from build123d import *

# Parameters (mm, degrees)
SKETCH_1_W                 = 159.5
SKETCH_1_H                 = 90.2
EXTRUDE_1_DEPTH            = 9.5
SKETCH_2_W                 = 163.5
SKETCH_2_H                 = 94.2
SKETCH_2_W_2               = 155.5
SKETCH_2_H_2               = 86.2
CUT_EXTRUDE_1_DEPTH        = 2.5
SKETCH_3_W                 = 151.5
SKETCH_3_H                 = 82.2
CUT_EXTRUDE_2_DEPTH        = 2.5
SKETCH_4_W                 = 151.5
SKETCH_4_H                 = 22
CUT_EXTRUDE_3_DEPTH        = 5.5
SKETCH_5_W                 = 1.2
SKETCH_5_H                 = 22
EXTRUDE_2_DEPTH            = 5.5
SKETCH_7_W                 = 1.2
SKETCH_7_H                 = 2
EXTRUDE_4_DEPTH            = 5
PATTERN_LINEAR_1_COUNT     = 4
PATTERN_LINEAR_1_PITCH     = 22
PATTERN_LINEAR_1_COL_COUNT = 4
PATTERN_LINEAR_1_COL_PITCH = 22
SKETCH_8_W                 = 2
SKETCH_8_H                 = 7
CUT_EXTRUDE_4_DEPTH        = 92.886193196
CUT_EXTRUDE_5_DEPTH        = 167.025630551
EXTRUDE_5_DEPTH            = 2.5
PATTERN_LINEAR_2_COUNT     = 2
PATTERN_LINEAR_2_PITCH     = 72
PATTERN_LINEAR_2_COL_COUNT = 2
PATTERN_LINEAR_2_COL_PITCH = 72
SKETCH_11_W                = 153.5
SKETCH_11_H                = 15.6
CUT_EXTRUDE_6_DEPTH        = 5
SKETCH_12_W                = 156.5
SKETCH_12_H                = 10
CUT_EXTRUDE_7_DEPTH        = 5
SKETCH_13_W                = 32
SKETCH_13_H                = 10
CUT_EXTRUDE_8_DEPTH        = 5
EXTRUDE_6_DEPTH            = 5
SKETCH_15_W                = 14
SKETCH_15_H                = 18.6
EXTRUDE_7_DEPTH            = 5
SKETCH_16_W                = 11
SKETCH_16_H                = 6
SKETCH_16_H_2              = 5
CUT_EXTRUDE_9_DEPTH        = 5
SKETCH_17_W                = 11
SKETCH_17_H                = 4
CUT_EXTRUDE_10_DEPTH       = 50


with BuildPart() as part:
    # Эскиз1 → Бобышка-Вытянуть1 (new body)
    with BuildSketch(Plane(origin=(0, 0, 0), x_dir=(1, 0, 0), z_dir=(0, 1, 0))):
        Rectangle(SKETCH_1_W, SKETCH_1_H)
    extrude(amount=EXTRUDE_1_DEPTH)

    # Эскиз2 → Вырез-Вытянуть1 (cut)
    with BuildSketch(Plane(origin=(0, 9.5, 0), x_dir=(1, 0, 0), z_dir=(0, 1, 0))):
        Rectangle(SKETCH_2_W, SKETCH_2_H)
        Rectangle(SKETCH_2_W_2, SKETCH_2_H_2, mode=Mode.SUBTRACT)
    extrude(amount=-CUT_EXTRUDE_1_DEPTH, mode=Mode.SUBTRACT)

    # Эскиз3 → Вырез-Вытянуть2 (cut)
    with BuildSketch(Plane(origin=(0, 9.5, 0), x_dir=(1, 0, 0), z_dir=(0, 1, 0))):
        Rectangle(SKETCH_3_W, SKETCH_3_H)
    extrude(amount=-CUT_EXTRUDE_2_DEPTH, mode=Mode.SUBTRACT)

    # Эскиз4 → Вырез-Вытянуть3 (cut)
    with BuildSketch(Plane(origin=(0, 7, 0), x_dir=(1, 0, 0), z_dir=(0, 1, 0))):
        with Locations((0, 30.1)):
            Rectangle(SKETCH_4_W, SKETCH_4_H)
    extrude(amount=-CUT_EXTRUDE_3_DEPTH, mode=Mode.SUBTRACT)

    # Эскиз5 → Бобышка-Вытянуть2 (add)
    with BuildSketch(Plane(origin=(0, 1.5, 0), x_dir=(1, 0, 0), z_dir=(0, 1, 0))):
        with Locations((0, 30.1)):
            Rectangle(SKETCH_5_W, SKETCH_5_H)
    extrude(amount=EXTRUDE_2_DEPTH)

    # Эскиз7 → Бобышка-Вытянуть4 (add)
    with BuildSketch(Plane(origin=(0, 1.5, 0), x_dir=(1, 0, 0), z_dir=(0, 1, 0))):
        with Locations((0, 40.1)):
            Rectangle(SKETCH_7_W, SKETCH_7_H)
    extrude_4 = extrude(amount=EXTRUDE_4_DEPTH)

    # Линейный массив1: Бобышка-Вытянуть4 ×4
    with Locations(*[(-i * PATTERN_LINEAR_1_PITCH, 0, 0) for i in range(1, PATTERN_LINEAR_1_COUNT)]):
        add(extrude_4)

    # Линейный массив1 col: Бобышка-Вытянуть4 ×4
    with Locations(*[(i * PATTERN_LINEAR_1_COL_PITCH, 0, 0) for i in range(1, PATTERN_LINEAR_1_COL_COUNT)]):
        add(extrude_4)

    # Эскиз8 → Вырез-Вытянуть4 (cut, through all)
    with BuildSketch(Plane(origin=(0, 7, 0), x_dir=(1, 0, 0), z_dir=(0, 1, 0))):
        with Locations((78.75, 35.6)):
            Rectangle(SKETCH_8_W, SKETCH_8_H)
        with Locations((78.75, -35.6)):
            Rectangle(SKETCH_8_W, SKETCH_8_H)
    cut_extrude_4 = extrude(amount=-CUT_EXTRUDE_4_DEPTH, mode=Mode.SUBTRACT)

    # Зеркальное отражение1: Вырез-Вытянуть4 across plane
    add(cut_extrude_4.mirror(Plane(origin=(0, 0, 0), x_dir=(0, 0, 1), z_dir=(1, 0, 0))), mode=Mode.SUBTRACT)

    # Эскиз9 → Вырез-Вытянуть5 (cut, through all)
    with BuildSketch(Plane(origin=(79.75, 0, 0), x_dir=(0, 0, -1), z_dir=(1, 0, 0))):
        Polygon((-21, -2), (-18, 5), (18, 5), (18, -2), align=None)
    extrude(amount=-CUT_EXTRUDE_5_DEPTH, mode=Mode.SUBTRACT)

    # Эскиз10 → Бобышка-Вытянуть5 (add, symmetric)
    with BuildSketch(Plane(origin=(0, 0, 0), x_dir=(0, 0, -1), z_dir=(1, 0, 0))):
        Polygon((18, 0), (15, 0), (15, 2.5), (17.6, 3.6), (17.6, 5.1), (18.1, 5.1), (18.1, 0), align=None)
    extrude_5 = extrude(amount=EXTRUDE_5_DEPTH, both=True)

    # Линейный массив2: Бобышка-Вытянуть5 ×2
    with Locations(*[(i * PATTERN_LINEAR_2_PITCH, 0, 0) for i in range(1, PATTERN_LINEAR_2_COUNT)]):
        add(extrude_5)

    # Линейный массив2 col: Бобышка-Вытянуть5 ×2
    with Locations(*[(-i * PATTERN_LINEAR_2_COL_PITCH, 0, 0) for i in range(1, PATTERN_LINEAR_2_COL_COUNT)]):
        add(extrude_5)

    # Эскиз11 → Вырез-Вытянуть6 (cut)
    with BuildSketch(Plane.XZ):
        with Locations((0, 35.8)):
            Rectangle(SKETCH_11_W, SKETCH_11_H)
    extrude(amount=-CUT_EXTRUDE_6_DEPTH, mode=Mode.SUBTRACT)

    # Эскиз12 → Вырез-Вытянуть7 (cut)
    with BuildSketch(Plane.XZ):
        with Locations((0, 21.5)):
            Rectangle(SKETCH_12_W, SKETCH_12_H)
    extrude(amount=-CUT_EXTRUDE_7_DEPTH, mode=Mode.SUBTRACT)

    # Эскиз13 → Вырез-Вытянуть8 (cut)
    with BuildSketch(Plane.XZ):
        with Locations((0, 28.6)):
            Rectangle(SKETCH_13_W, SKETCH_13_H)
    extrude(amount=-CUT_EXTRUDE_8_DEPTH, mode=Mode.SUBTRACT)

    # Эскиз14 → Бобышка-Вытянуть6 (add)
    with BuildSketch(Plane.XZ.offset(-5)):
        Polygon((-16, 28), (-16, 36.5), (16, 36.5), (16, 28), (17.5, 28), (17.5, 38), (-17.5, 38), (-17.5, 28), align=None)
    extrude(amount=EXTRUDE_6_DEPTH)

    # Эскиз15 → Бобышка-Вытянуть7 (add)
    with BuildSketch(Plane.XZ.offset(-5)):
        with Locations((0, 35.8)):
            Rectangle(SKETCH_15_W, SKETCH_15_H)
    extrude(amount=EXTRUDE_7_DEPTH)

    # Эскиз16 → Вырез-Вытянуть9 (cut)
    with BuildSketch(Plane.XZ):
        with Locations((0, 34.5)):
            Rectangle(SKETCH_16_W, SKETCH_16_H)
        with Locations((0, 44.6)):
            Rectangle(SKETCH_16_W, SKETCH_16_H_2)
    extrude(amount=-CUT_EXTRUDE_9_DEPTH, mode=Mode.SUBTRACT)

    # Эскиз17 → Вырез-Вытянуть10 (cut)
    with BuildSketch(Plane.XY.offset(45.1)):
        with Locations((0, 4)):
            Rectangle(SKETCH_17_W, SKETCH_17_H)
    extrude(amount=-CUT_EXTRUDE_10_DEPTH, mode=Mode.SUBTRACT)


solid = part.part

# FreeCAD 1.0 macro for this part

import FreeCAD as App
import Part
import Sketcher
from FreeCAD import Vector
Q = App.Units.Quantity

doc = App.newDocument("Part")
body = doc.addObject("PartDesign::Body", "Body")

# Sketch on XZ plane
sketch1 = body.newObject("Sketcher::SketchObject", "Sketch")
sketch1.AttachmentSupport = (doc.getObject("XZ_Plane"), [""])
sketch1.MapMode = "FlatFace"
sketch1.addGeometry([
    Part.LineSegment(Vector(-80, -45, 0), Vector(-80, 45, 0)),
    Part.LineSegment(Vector(-80, 45, 0), Vector(80, 45, 0)),
    Part.LineSegment(Vector(80, 45, 0), Vector(80, -45, 0)),
    Part.LineSegment(Vector(80, -45, 0), Vector(-80, -45, 0)),
], False)
sketch1.addConstraint([
    Sketcher.Constraint("Coincident", 0, 2, 1, 1),
    Sketcher.Constraint("Coincident", 1, 2, 2, 1),
    Sketcher.Constraint("Coincident", 2, 2, 3, 1),
    Sketcher.Constraint("Coincident", 3, 2, 0, 1),
    Sketcher.Constraint("Vertical", 0),
    Sketcher.Constraint("Horizontal", 1),
    Sketcher.Constraint("Vertical", 2),
    Sketcher.Constraint("Horizontal", 3),
    Sketcher.Constraint("Symmetric", 0, 2, 2, 2, -1, 1),
    Sketcher.Constraint("DistanceX", 1, 1, 1, 2, Q("159.5 mm")),
    Sketcher.Constraint("DistanceY", 0, 1, 0, 2, Q("90.2 mm")),
])
pad1 = body.newObject("PartDesign::Pad", "Pad")
pad1.Profile = sketch1
pad1.Length = 9.5
pad1.Reversed = True

# Sketch on XZ plane
sketch2 = body.newObject("Sketcher::SketchObject", "Sketch001")
sketch2.AttachmentSupport = (doc.getObject("XZ_Plane"), [""])
sketch2.MapMode = "FlatFace"
sketch2.AttachmentOffset = App.Placement(Vector(0, 0, -9.5), App.Rotation())
sketch2.addGeometry([
    Part.LineSegment(Vector(-82, -47, 0), Vector(-82, 47, 0)),  # 0
    Part.LineSegment(Vector(-82, 47, 0), Vector(82, 47, 0)),  # 1
    Part.LineSegment(Vector(82, 47, 0), Vector(82, -47, 0)),  # 2
    Part.LineSegment(Vector(82, -47, 0), Vector(-82, -47, 0)),  # 3
    Part.LineSegment(Vector(78, 43, 0), Vector(-78, 43, 0)),  # 4
    Part.LineSegment(Vector(-78, 43, 0), Vector(-78, -43, 0)),  # 5
    Part.LineSegment(Vector(-78, -43, 0), Vector(78, -43, 0)),  # 6
    Part.LineSegment(Vector(78, -43, 0), Vector(78, 43, 0)),  # 7
], False)
sketch2.addConstraint([
    Sketcher.Constraint("Coincident", 0, 2, 1, 1),
    Sketcher.Constraint("Coincident", 1, 2, 2, 1),
    Sketcher.Constraint("Coincident", 2, 2, 3, 1),
    Sketcher.Constraint("Coincident", 3, 2, 0, 1),
    Sketcher.Constraint("Coincident", 4, 2, 5, 1),
    Sketcher.Constraint("Coincident", 5, 2, 6, 1),
    Sketcher.Constraint("Coincident", 6, 2, 7, 1),
    Sketcher.Constraint("Coincident", 7, 2, 4, 1),
    Sketcher.Constraint("Vertical", 0),
    Sketcher.Constraint("Horizontal", 1),
    Sketcher.Constraint("Vertical", 2),
    Sketcher.Constraint("Horizontal", 3),
    Sketcher.Constraint("Horizontal", 4),
    Sketcher.Constraint("Vertical", 5),
    Sketcher.Constraint("Horizontal", 6),
    Sketcher.Constraint("Vertical", 7),
    Sketcher.Constraint("Symmetric", 0, 2, 2, 2, -1, 1),
    Sketcher.Constraint("Symmetric", 4, 2, 6, 2, -1, 1),
    Sketcher.Constraint("DistanceX", 1, 1, 1, 2, Q("163.5 mm")),
    Sketcher.Constraint("DistanceX", 4, 2, 4, 1, Q("155.5 mm")),
    Sketcher.Constraint("DistanceY", 0, 1, 0, 2, Q("94.2 mm")),
    Sketcher.Constraint("DistanceY", 5, 2, 5, 1, Q("86.2 mm")),
])
pocket1 = body.newObject("PartDesign::Pocket", "Pocket")
pocket1.Profile = sketch2
pocket1.Length = 2.5
pocket1.Reversed = True

# Sketch on XZ plane
sketch3 = body.newObject("Sketcher::SketchObject", "Sketch002")
sketch3.AttachmentSupport = (doc.getObject("XZ_Plane"), [""])
sketch3.MapMode = "FlatFace"
sketch3.AttachmentOffset = App.Placement(Vector(0, 0, -9.5), App.Rotation())
sketch3.addGeometry([
    Part.LineSegment(Vector(-76, -41, 0), Vector(-76, 41, 0)),
    Part.LineSegment(Vector(-76, 41, 0), Vector(76, 41, 0)),
    Part.LineSegment(Vector(76, 41, 0), Vector(76, -41, 0)),
    Part.LineSegment(Vector(76, -41, 0), Vector(-76, -41, 0)),
], False)
sketch3.addConstraint([
    Sketcher.Constraint("Coincident", 0, 2, 1, 1),
    Sketcher.Constraint("Coincident", 1, 2, 2, 1),
    Sketcher.Constraint("Coincident", 2, 2, 3, 1),
    Sketcher.Constraint("Coincident", 3, 2, 0, 1),
    Sketcher.Constraint("Vertical", 0),
    Sketcher.Constraint("Horizontal", 1),
    Sketcher.Constraint("Vertical", 2),
    Sketcher.Constraint("Horizontal", 3),
    Sketcher.Constraint("Symmetric", 0, 2, 2, 2, -1, 1),
    Sketcher.Constraint("DistanceX", 1, 1, 1, 2, Q("151.5 mm")),
    Sketcher.Constraint("DistanceY", 0, 1, 0, 2, Q("82.2 mm")),
])
pocket2 = body.newObject("PartDesign::Pocket", "Pocket001")
pocket2.Profile = sketch3
pocket2.Length = 2.5
pocket2.Reversed = True

# Sketch on XZ plane
sketch4 = body.newObject("Sketcher::SketchObject", "Sketch003")
sketch4.AttachmentSupport = (doc.getObject("XZ_Plane"), [""])
sketch4.MapMode = "FlatFace"
sketch4.AttachmentOffset = App.Placement(Vector(0, 0, -7), App.Rotation())
sketch4.addGeometry([
    Part.LineSegment(Vector(-76, -41, 0), Vector(-76, -19, 0)),
    Part.LineSegment(Vector(-76, -19, 0), Vector(76, -19, 0)),
    Part.LineSegment(Vector(76, -19, 0), Vector(76, -41, 0)),
    Part.LineSegment(Vector(76, -41, 0), Vector(-76, -41, 0)),
], False)
sketch4.addConstraint([
    Sketcher.Constraint("Coincident", 0, 2, 1, 1),
    Sketcher.Constraint("Coincident", 1, 2, 2, 1),
    Sketcher.Constraint("Coincident", 2, 2, 3, 1),
    Sketcher.Constraint("Coincident", 3, 2, 0, 1),
    Sketcher.Constraint("Vertical", 0),
    Sketcher.Constraint("Horizontal", 1),
    Sketcher.Constraint("Vertical", 2),
    Sketcher.Constraint("Horizontal", 3),
    Sketcher.Constraint("DistanceY", 0, 1, 0, 2, Q("22 mm")),
    Sketcher.Constraint("DistanceX", 1, 1, 1, 2, Q("151.5 mm")),
    Sketcher.Constraint("DistanceY", 0, 2, -1, 1, Q("19.1 mm")),
    Sketcher.Constraint("DistanceX", 0, 2, -1, 1, Q("75.75 mm")),
])
pocket3 = body.newObject("PartDesign::Pocket", "Pocket002")
pocket3.Profile = sketch4
pocket3.Length = 5.5
pocket3.Reversed = True

# Sketch on XZ plane
sketch5 = body.newObject("Sketcher::SketchObject", "Sketch004")
sketch5.AttachmentSupport = (doc.getObject("XZ_Plane"), [""])
sketch5.MapMode = "FlatFace"
sketch5.AttachmentOffset = App.Placement(Vector(0, 0, -1.5), App.Rotation())
sketch5.addGeometry([
    Part.LineSegment(Vector(-0.6, -41.1, 0), Vector(-0.6, -19.1, 0)),
    Part.LineSegment(Vector(-0.6, -19.1, 0), Vector(0.6, -19.1, 0)),
    Part.LineSegment(Vector(0.6, -19.1, 0), Vector(0.6, -41.1, 0)),
    Part.LineSegment(Vector(0.6, -41.1, 0), Vector(-0.6, -41.1, 0)),
], False)
sketch5.addConstraint([
    Sketcher.Constraint("Coincident", 0, 2, 1, 1),
    Sketcher.Constraint("Coincident", 1, 2, 2, 1),
    Sketcher.Constraint("Coincident", 2, 2, 3, 1),
    Sketcher.Constraint("Coincident", 3, 2, 0, 1),
    Sketcher.Constraint("Vertical", 0),
    Sketcher.Constraint("Horizontal", 1),
    Sketcher.Constraint("Vertical", 2),
    Sketcher.Constraint("Horizontal", 3),
    Sketcher.Constraint("DistanceY", 0, 1, 0, 2, Q("22 mm")),
    Sketcher.Constraint("DistanceX", 1, 1, 1, 2, Q("1.2 mm")),
    Sketcher.Constraint("DistanceX", 0, 2, -1, 1, Q("0.6 mm")),
    Sketcher.Constraint("DistanceY", 0, 2, -1, 1, Q("19.1 mm")),
])
pad2 = body.newObject("PartDesign::Pad", "Pad001")
pad2.Profile = sketch5
pad2.Length = 5.5
pad2.Reversed = True

# Sketch on XZ plane
sketch6 = body.newObject("Sketcher::SketchObject", "Sketch005")
sketch6.AttachmentSupport = (doc.getObject("XZ_Plane"), [""])
sketch6.MapMode = "FlatFace"
sketch6.AttachmentOffset = App.Placement(Vector(0, 0, -1.5), App.Rotation())
sketch6.addGeometry([
    Part.LineSegment(Vector(-0.6, -41.1, 0), Vector(-0.6, -39.1, 0)),
    Part.LineSegment(Vector(-0.6, -39.1, 0), Vector(0.6, -39.1, 0)),
    Part.LineSegment(Vector(0.6, -39.1, 0), Vector(0.6, -41.1, 0)),
    Part.LineSegment(Vector(0.6, -41.1, 0), Vector(-0.6, -41.1, 0)),
], False)
sketch6.addConstraint([
    Sketcher.Constraint("Coincident", 0, 2, 1, 1),
    Sketcher.Constraint("Coincident", 1, 2, 2, 1),
    Sketcher.Constraint("Coincident", 2, 2, 3, 1),
    Sketcher.Constraint("Coincident", 3, 2, 0, 1),
    Sketcher.Constraint("Vertical", 0),
    Sketcher.Constraint("Horizontal", 1),
    Sketcher.Constraint("Vertical", 2),
    Sketcher.Constraint("Horizontal", 3),
    Sketcher.Constraint("DistanceY", 0, 1, 0, 2, Q("2 mm")),
    Sketcher.Constraint("DistanceX", 1, 1, 1, 2, Q("1.2 mm")),
    Sketcher.Constraint("DistanceX", 0, 2, -1, 1, Q("0.6 mm")),
    Sketcher.Constraint("DistanceY", 0, 2, -1, 1, Q("39.1 mm")),
])
pad3 = body.newObject("PartDesign::Pad", "Pad002")
pad3.Profile = sketch6
pad3.Length = 5
pad3.Reversed = True
doc.recompute()

linearpattern = body.newObject("PartDesign::LinearPattern", "LinearPattern")
linearpattern.Originals = [pad3]
linearpattern.Direction = (doc.getObject("X_Axis"), [""])
linearpattern.Mode = "offset"
linearpattern.Offset = 22
linearpattern.Occurrences = 4
linearpattern.Reversed = True
body.Tip = linearpattern
doc.recompute()

linearpattern2 = body.newObject("PartDesign::LinearPattern", "LinearPattern001")
linearpattern2.Originals = [pad3]
linearpattern2.Direction = (doc.getObject("X_Axis"), [""])
linearpattern2.Mode = "offset"
linearpattern2.Offset = 22
linearpattern2.Occurrences = 4
body.Tip = linearpattern2

# Sketch on XZ plane
sketch7 = body.newObject("Sketcher::SketchObject", "Sketch006")
sketch7.AttachmentSupport = (doc.getObject("XZ_Plane"), [""])
sketch7.MapMode = "FlatFace"
sketch7.AttachmentOffset = App.Placement(Vector(0, 0, -7), App.Rotation())
sketch7.addGeometry([
    Part.LineSegment(Vector(77.8, -39.1, 0), Vector(77.8, -32.1, 0)),  # 0
    Part.LineSegment(Vector(77.8, -32.1, 0), Vector(79.8, -32.1, 0)),  # 1
    Part.LineSegment(Vector(79.8, -32.1, 0), Vector(79.8, -39.1, 0)),  # 2
    Part.LineSegment(Vector(79.8, -39.1, 0), Vector(77.8, -39.1, 0)),  # 3
    Part.LineSegment(Vector(77.8, 32.1, 0), Vector(77.8, 39.1, 0)),  # 4
    Part.LineSegment(Vector(77.8, 39.1, 0), Vector(79.8, 39.1, 0)),  # 5
    Part.LineSegment(Vector(79.8, 39.1, 0), Vector(79.8, 32.1, 0)),  # 6
    Part.LineSegment(Vector(79.8, 32.1, 0), Vector(77.8, 32.1, 0)),  # 7
], False)
sketch7.addConstraint([
    Sketcher.Constraint("Coincident", 0, 2, 1, 1),
    Sketcher.Constraint("Coincident", 1, 2, 2, 1),
    Sketcher.Constraint("Coincident", 2, 2, 3, 1),
    Sketcher.Constraint("Coincident", 3, 2, 0, 1),
    Sketcher.Constraint("Coincident", 4, 2, 5, 1),
    Sketcher.Constraint("Coincident", 5, 2, 6, 1),
    Sketcher.Constraint("Coincident", 6, 2, 7, 1),
    Sketcher.Constraint("Coincident", 7, 2, 4, 1),
    Sketcher.Constraint("Vertical", 0),
    Sketcher.Constraint("Horizontal", 1),
    Sketcher.Constraint("Vertical", 2),
    Sketcher.Constraint("Horizontal", 3),
    Sketcher.Constraint("Vertical", 4),
    Sketcher.Constraint("Horizontal", 5),
    Sketcher.Constraint("Vertical", 6),
    Sketcher.Constraint("Horizontal", 7),
    Sketcher.Constraint("Symmetric", 3, 2, 4, 2, -1),
    Sketcher.Constraint("Symmetric", 1, 2, 6, 2, -1),
    Sketcher.Constraint("DistanceX", 1, 1, 1, 2, Q("2 mm")),
    Sketcher.Constraint("DistanceY", 0, 1, 0, 2, Q("7 mm")),
    Sketcher.Constraint("DistanceY", 0, 2, -1, 1, Q("32.1 mm")),
    Sketcher.Constraint("DistanceX", -1, 1, 0, 2, Q("77.75 mm")),
])
pocket4 = body.newObject("PartDesign::Pocket", "Pocket003")
pocket4.Profile = sketch7
pocket4.Type = "ThroughAll"
pocket4.Reversed = True
doc.recompute()

mirrored = body.newObject("PartDesign::Mirrored", "Mirrored")
mirrored.Originals = [pocket4]
mirrored.MirrorPlane = (doc.getObject("YZ_Plane"), [""])
body.Tip = mirrored

# Sketch on YZ plane
sketch8 = body.newObject("Sketcher::SketchObject", "Sketch007")
sketch8.AttachmentSupport = (doc.getObject("YZ_Plane"), [""])
sketch8.MapMode = "FlatFace"
sketch8.AttachmentOffset = App.Placement(Vector(0, 0, 79.75), App.Rotation())
sketch8.addGeometry([
    Part.LineSegment(Vector(5, 18, 0), Vector(-2, 21, 0)),
    Part.LineSegment(Vector(-2, 21, 0), Vector(-2, -18, 0)),
    Part.LineSegment(Vector(-2, -18, 0), Vector(5, -18, 0)),
    Part.LineSegment(Vector(5, -18, 0), Vector(5, 18, 0)),
], False)
sketch8.addConstraint([
    Sketcher.Constraint("Coincident", 0, 2, 1, 1),
    Sketcher.Constraint("Coincident", 1, 2, 2, 1),
    Sketcher.Constraint("Coincident", 2, 2, 3, 1),
    Sketcher.Constraint("Coincident", 3, 2, 0, 1),
    Sketcher.Constraint("Vertical", 1),
    Sketcher.Constraint("Horizontal", 2),
    Sketcher.Constraint("Vertical", 3),
    Sketcher.Constraint("DistanceX", 2, 1, 2, 2, Q("7 mm")),
    Sketcher.Constraint("DistanceY", 1, 2, 1, 1, Q("39 mm")),
    Sketcher.Constraint("DistanceY", 3, 1, 3, 2, Q("36 mm")),
    Sketcher.Constraint("DistanceX", 0, 2, -1, 1, Q("2 mm")),
    Sketcher.Constraint("DistanceY", -1, 1, 0, 2, Q("21 mm")),
])
pocket5 = body.newObject("PartDesign::Pocket", "Pocket004")
pocket5.Profile = sketch8
pocket5.Type = "ThroughAll"

# Sketch on YZ plane
sketch9 = body.newObject("Sketcher::SketchObject", "Sketch008")
sketch9.AttachmentSupport = (doc.getObject("YZ_Plane"), [""])
sketch9.MapMode = "FlatFace"
sketch9.addGeometry([
    Part.LineSegment(Vector(0, -15, 0), Vector(0, -18.1, 0)),  # 0
    Part.LineSegment(Vector(0, -18.1, 0), Vector(5.1, -18.1, 0)),  # 1
    Part.LineSegment(Vector(5.1, -18.1, 0), Vector(5.1, -17.6, 0)),  # 2
    Part.LineSegment(Vector(5.1, -17.6, 0), Vector(3.6, -17.6, 0)),  # 3
    Part.LineSegment(Vector(3.6, -17.6, 0), Vector(2.5, -15, 0)),  # 4
    Part.LineSegment(Vector(2.5, -15, 0), Vector(0, -15, 0)),  # 5
], False)
sketch9.addConstraint([
    Sketcher.Constraint("Coincident", 0, 2, 1, 1),
    Sketcher.Constraint("Coincident", 1, 2, 2, 1),
    Sketcher.Constraint("Coincident", 2, 2, 3, 1),
    Sketcher.Constraint("Coincident", 3, 2, 4, 1),
    Sketcher.Constraint("Coincident", 4, 2, 5, 1),
    Sketcher.Constraint("Coincident", 5, 2, 0, 1),
    Sketcher.Constraint("Vertical", 0),
    Sketcher.Constraint("Horizontal", 1),
    Sketcher.Constraint("Vertical", 2),
    Sketcher.Constraint("Horizontal", 3),
    Sketcher.Constraint("Horizontal", 5),
    Sketcher.Constraint("PointOnObject", 0, 2, -2),
    Sketcher.Constraint("DistanceX", 1, 1, 1, 2, Q("5.1 mm")),
    Sketcher.Constraint("DistanceX", 3, 2, 3, 1, Q("1.5 mm")),
    Sketcher.Constraint("DistanceX", 5, 2, 5, 1, Q("2.5 mm")),
    Sketcher.Constraint("DistanceY", 0, 2, 0, 1, Q("3.1 mm")),
    Sketcher.Constraint("DistanceY", 2, 1, 2, 2, Q("0.5 mm")),
    Sketcher.Constraint("DistanceY", 4, 2, -1, 1, Q("15 mm")),
])
pad4 = body.newObject("PartDesign::Pad", "Pad003")
pad4.Profile = sketch9
pad4.Length = 5
pad4.Midplane = True
doc.recompute()

linearpattern3 = body.newObject("PartDesign::LinearPattern", "LinearPattern002")
linearpattern3.Originals = [pad4]
linearpattern3.Direction = (doc.getObject("X_Axis"), [""])
linearpattern3.Mode = "offset"
linearpattern3.Offset = 72
linearpattern3.Occurrences = 2
body.Tip = linearpattern3
doc.recompute()

linearpattern4 = body.newObject("PartDesign::LinearPattern", "LinearPattern003")
linearpattern4.Originals = [pad4]
linearpattern4.Direction = (doc.getObject("X_Axis"), [""])
linearpattern4.Mode = "offset"
linearpattern4.Offset = 72
linearpattern4.Occurrences = 2
linearpattern4.Reversed = True
body.Tip = linearpattern4

# Sketch on XZ plane
sketch10 = body.newObject("Sketcher::SketchObject", "Sketch009")
sketch10.AttachmentSupport = (doc.getObject("XZ_Plane"), [""])
sketch10.MapMode = "FlatFace"
sketch10.addGeometry([
    Part.LineSegment(Vector(-77, 44, 0), Vector(-77, 28, 0)),
    Part.LineSegment(Vector(-77, 28, 0), Vector(77, 28, 0)),
    Part.LineSegment(Vector(77, 28, 0), Vector(77, 44, 0)),
    Part.LineSegment(Vector(77, 44, 0), Vector(-77, 44, 0)),
], False)
sketch10.addConstraint([
    Sketcher.Constraint("Coincident", 0, 2, 1, 1),
    Sketcher.Constraint("Coincident", 1, 2, 2, 1),
    Sketcher.Constraint("Coincident", 2, 2, 3, 1),
    Sketcher.Constraint("Coincident", 3, 2, 0, 1),
    Sketcher.Constraint("Vertical", 0),
    Sketcher.Constraint("Horizontal", 1),
    Sketcher.Constraint("Vertical", 2),
    Sketcher.Constraint("Horizontal", 3),
    Sketcher.Constraint("DistanceX", 1, 1, 1, 2, Q("153.5 mm")),
    Sketcher.Constraint("DistanceY", 0, 2, 0, 1, Q("15.6 mm")),
    Sketcher.Constraint("DistanceY", -1, 1, 0, 2, Q("28 mm")),
    Sketcher.Constraint("DistanceX", 0, 2, -1, 1, Q("76.75 mm")),
])
pocket6 = body.newObject("PartDesign::Pocket", "Pocket005")
pocket6.Profile = sketch10
pocket6.Length = 5

# Sketch on XZ plane
sketch11 = body.newObject("Sketcher::SketchObject", "Sketch010")
sketch11.AttachmentSupport = (doc.getObject("XZ_Plane"), [""])
sketch11.MapMode = "FlatFace"
sketch11.addGeometry([
    Part.LineSegment(Vector(-78, 26, 0), Vector(-78, 16, 0)),
    Part.LineSegment(Vector(-78, 16, 0), Vector(78, 16, 0)),
    Part.LineSegment(Vector(78, 16, 0), Vector(78, 26, 0)),
    Part.LineSegment(Vector(78, 26, 0), Vector(-78, 26, 0)),
], False)
sketch11.addConstraint([
    Sketcher.Constraint("Coincident", 0, 2, 1, 1),
    Sketcher.Constraint("Coincident", 1, 2, 2, 1),
    Sketcher.Constraint("Coincident", 2, 2, 3, 1),
    Sketcher.Constraint("Coincident", 3, 2, 0, 1),
    Sketcher.Constraint("Vertical", 0),
    Sketcher.Constraint("Horizontal", 1),
    Sketcher.Constraint("Vertical", 2),
    Sketcher.Constraint("Horizontal", 3),
    Sketcher.Constraint("DistanceY", 0, 2, 0, 1, Q("10 mm")),
    Sketcher.Constraint("DistanceX", 1, 1, 1, 2, Q("156.5 mm")),
    Sketcher.Constraint("DistanceY", -1, 1, 0, 2, Q("16.5 mm")),
    Sketcher.Constraint("DistanceX", 0, 2, -1, 1, Q("78.25 mm")),
])
pocket7 = body.newObject("PartDesign::Pocket", "Pocket006")
pocket7.Profile = sketch11
pocket7.Length = 5

# Sketch on XZ plane
sketch12 = body.newObject("Sketcher::SketchObject", "Sketch011")
sketch12.AttachmentSupport = (doc.getObject("XZ_Plane"), [""])
sketch12.MapMode = "FlatFace"
sketch12.addGeometry([
    Part.LineSegment(Vector(-16, 34, 0), Vector(-16, 24, 0)),
    Part.LineSegment(Vector(-16, 24, 0), Vector(16, 24, 0)),
    Part.LineSegment(Vector(16, 24, 0), Vector(16, 34, 0)),
    Part.LineSegment(Vector(16, 34, 0), Vector(-16, 34, 0)),
], False)
sketch12.addConstraint([
    Sketcher.Constraint("Coincident", 0, 2, 1, 1),
    Sketcher.Constraint("Coincident", 1, 2, 2, 1),
    Sketcher.Constraint("Coincident", 2, 2, 3, 1),
    Sketcher.Constraint("Coincident", 3, 2, 0, 1),
    Sketcher.Constraint("Vertical", 0),
    Sketcher.Constraint("Horizontal", 1),
    Sketcher.Constraint("Vertical", 2),
    Sketcher.Constraint("Horizontal", 3),
    Sketcher.Constraint("DistanceX", 1, 1, 1, 2, Q("32 mm")),
    Sketcher.Constraint("DistanceY", 0, 2, 0, 1, Q("10 mm")),
    Sketcher.Constraint("DistanceX", 0, 2, -1, 1, Q("16 mm")),
    Sketcher.Constraint("DistanceY", -1, 1, 0, 2, Q("23.6 mm")),
])
pocket8 = body.newObject("PartDesign::Pocket", "Pocket007")
pocket8.Profile = sketch12
pocket8.Length = 5

# Sketch on XZ plane
sketch13 = body.newObject("Sketcher::SketchObject", "Sketch012")
sketch13.AttachmentSupport = (doc.getObject("XZ_Plane"), [""])
sketch13.MapMode = "FlatFace"
sketch13.AttachmentOffset = App.Placement(Vector(0, 0, -5), App.Rotation())
sketch13.addGeometry([
    Part.LineSegment(Vector(-16, 28, 0), Vector(-16, 36.5, 0)),  # 0
    Part.LineSegment(Vector(-16, 36.5, 0), Vector(16, 36.5, 0)),  # 1
    Part.LineSegment(Vector(16, 36.5, 0), Vector(16, 28, 0)),  # 2
    Part.LineSegment(Vector(16, 28, 0), Vector(17.5, 28, 0)),  # 3
    Part.LineSegment(Vector(17.5, 28, 0), Vector(17.5, 38, 0)),  # 4
    Part.LineSegment(Vector(17.5, 38, 0), Vector(-17.5, 38, 0)),  # 5
    Part.LineSegment(Vector(-17.5, 38, 0), Vector(-17.5, 28, 0)),  # 6
    Part.LineSegment(Vector(-17.5, 28, 0), Vector(-16, 28, 0)),  # 7
], False)
sketch13.addConstraint([
    Sketcher.Constraint("Coincident", 0, 2, 1, 1),
    Sketcher.Constraint("Coincident", 1, 2, 2, 1),
    Sketcher.Constraint("Coincident", 2, 2, 3, 1),
    Sketcher.Constraint("Coincident", 3, 2, 4, 1),
    Sketcher.Constraint("Coincident", 4, 2, 5, 1),
    Sketcher.Constraint("Coincident", 5, 2, 6, 1),
    Sketcher.Constraint("Coincident", 6, 2, 7, 1),
    Sketcher.Constraint("Coincident", 7, 2, 0, 1),
    Sketcher.Constraint("Vertical", 0),
    Sketcher.Constraint("Horizontal", 1),
    Sketcher.Constraint("Vertical", 2),
    Sketcher.Constraint("Horizontal", 3),
    Sketcher.Constraint("Vertical", 4),
    Sketcher.Constraint("Horizontal", 5),
    Sketcher.Constraint("Vertical", 6),
    Sketcher.Constraint("Horizontal", 7),
    Sketcher.Constraint("Symmetric", 3, 2, 6, 2, -2),
    Sketcher.Constraint("Equal", 3, 7),
    Sketcher.Constraint("DistanceX", 1, 1, 1, 2, Q("32 mm")),
    Sketcher.Constraint("DistanceX", 5, 2, 5, 1, Q("35 mm")),
    Sketcher.Constraint("DistanceY", 4, 1, 4, 2, Q("10 mm")),
    Sketcher.Constraint("DistanceY", 0, 1, 0, 2, Q("8.5 mm")),
    Sketcher.Constraint("DistanceY", -1, 1, 2, 2, Q("28 mm")),
])
pad5 = body.newObject("PartDesign::Pad", "Pad004")
pad5.Profile = sketch13
pad5.Length = 5

# Sketch on XZ plane
sketch14 = body.newObject("Sketcher::SketchObject", "Sketch013")
sketch14.AttachmentSupport = (doc.getObject("XZ_Plane"), [""])
sketch14.MapMode = "FlatFace"
sketch14.AttachmentOffset = App.Placement(Vector(0, 0, -5), App.Rotation())
sketch14.addGeometry([
    Part.LineSegment(Vector(-7, 45, 0), Vector(-7, 26, 0)),
    Part.LineSegment(Vector(-7, 26, 0), Vector(7, 26, 0)),
    Part.LineSegment(Vector(7, 26, 0), Vector(7, 45, 0)),
    Part.LineSegment(Vector(7, 45, 0), Vector(-7, 45, 0)),
], False)
sketch14.addConstraint([
    Sketcher.Constraint("Coincident", 0, 2, 1, 1),
    Sketcher.Constraint("Coincident", 1, 2, 2, 1),
    Sketcher.Constraint("Coincident", 2, 2, 3, 1),
    Sketcher.Constraint("Coincident", 3, 2, 0, 1),
    Sketcher.Constraint("Vertical", 0),
    Sketcher.Constraint("Horizontal", 1),
    Sketcher.Constraint("Vertical", 2),
    Sketcher.Constraint("Horizontal", 3),
    Sketcher.Constraint("DistanceX", 1, 1, 1, 2, Q("14 mm")),
    Sketcher.Constraint("DistanceY", 0, 2, 0, 1, Q("18.6 mm")),
    Sketcher.Constraint("DistanceX", 0, 2, -1, 1, Q("7 mm")),
    Sketcher.Constraint("DistanceY", -1, 1, 0, 2, Q("26.5 mm")),
])
pad6 = body.newObject("PartDesign::Pad", "Pad005")
pad6.Profile = sketch14
pad6.Length = 5

# Sketch on XZ plane
sketch15 = body.newObject("Sketcher::SketchObject", "Sketch014")
sketch15.AttachmentSupport = (doc.getObject("XZ_Plane"), [""])
sketch15.MapMode = "FlatFace"
sketch15.addGeometry([
    Part.LineSegment(Vector(-6, 38, 0), Vector(-6, 32, 0)),  # 0
    Part.LineSegment(Vector(-6, 32, 0), Vector(6, 32, 0)),  # 1
    Part.LineSegment(Vector(6, 32, 0), Vector(6, 38, 0)),  # 2
    Part.LineSegment(Vector(6, 38, 0), Vector(-6, 38, 0)),  # 3
    Part.LineSegment(Vector(-6, 47, 0), Vector(-6, 42, 0)),  # 4
    Part.LineSegment(Vector(-6, 42, 0), Vector(6, 42, 0)),  # 5
    Part.LineSegment(Vector(6, 42, 0), Vector(6, 47, 0)),  # 6
    Part.LineSegment(Vector(6, 47, 0), Vector(-6, 47, 0)),  # 7
], False)
sketch15.addConstraint([
    Sketcher.Constraint("Coincident", 0, 2, 1, 1),
    Sketcher.Constraint("Coincident", 1, 2, 2, 1),
    Sketcher.Constraint("Coincident", 2, 2, 3, 1),
    Sketcher.Constraint("Coincident", 3, 2, 0, 1),
    Sketcher.Constraint("Coincident", 4, 2, 5, 1),
    Sketcher.Constraint("Coincident", 5, 2, 6, 1),
    Sketcher.Constraint("Coincident", 6, 2, 7, 1),
    Sketcher.Constraint("Coincident", 7, 2, 4, 1),
    Sketcher.Constraint("Vertical", 0),
    Sketcher.Constraint("Horizontal", 1),
    Sketcher.Constraint("Vertical", 2),
    Sketcher.Constraint("Horizontal", 3),
    Sketcher.Constraint("Vertical", 4),
    Sketcher.Constraint("Horizontal", 5),
    Sketcher.Constraint("Vertical", 6),
    Sketcher.Constraint("Horizontal", 7),
    Sketcher.Constraint("Vertical", 3, 2, 4, 2),
    Sketcher.Constraint("Vertical", 2, 2, 5, 2),
    Sketcher.Constraint("DistanceX", 1, 1, 1, 2, Q("11 mm")),
    Sketcher.Constraint("DistanceY", 0, 2, 0, 1, Q("6 mm")),
    Sketcher.Constraint("DistanceY", 4, 2, 4, 1, Q("5 mm")),
    Sketcher.Constraint("DistanceX", 0, 2, -1, 1, Q("5.5 mm")),
    Sketcher.Constraint("DistanceY", -1, 1, 0, 2, Q("31.5 mm")),
    Sketcher.Constraint("DistanceY", -1, 1, 4, 2, Q("42.1 mm")),
])
pocket9 = body.newObject("PartDesign::Pocket", "Pocket008")
pocket9.Profile = sketch15
pocket9.Length = 5

# Sketch on XY plane
sketch16 = body.newObject("Sketcher::SketchObject", "Sketch015")
sketch16.AttachmentSupport = (doc.getObject("XY_Plane"), [""])
sketch16.MapMode = "FlatFace"
sketch16.AttachmentOffset = App.Placement(Vector(0, 0, 45.1), App.Rotation())
sketch16.addGeometry([
    Part.LineSegment(Vector(-5.5, 6, 0), Vector(-5.5, 2, 0)),
    Part.LineSegment(Vector(-5.5, 2, 0), Vector(5.5, 2, 0)),
    Part.LineSegment(Vector(5.5, 2, 0), Vector(5.5, 6, 0)),
    Part.LineSegment(Vector(5.5, 6, 0), Vector(-5.5, 6, 0)),
], False)
sketch16.addConstraint([
    Sketcher.Constraint("Coincident", 0, 2, 1, 1),
    Sketcher.Constraint("Coincident", 1, 2, 2, 1),
    Sketcher.Constraint("Coincident", 2, 2, 3, 1),
    Sketcher.Constraint("Coincident", 3, 2, 0, 1),
    Sketcher.Constraint("Vertical", 0),
    Sketcher.Constraint("Horizontal", 1),
    Sketcher.Constraint("Vertical", 2),
    Sketcher.Constraint("Horizontal", 3),
    Sketcher.Constraint("DistanceX", 1, 1, 1, 2, Q("11 mm")),
    Sketcher.Constraint("DistanceY", 0, 2, 0, 1, Q("4 mm")),
    Sketcher.Constraint("DistanceY", -1, 1, 0, 2, Q("2 mm")),
    Sketcher.Constraint("DistanceX", 0, 2, -1, 1, Q("5.5 mm")),
])
pocket10 = body.newObject("PartDesign::Pocket", "Pocket009")
pocket10.Profile = sketch16
pocket10.Length = 50

doc.recompute()
